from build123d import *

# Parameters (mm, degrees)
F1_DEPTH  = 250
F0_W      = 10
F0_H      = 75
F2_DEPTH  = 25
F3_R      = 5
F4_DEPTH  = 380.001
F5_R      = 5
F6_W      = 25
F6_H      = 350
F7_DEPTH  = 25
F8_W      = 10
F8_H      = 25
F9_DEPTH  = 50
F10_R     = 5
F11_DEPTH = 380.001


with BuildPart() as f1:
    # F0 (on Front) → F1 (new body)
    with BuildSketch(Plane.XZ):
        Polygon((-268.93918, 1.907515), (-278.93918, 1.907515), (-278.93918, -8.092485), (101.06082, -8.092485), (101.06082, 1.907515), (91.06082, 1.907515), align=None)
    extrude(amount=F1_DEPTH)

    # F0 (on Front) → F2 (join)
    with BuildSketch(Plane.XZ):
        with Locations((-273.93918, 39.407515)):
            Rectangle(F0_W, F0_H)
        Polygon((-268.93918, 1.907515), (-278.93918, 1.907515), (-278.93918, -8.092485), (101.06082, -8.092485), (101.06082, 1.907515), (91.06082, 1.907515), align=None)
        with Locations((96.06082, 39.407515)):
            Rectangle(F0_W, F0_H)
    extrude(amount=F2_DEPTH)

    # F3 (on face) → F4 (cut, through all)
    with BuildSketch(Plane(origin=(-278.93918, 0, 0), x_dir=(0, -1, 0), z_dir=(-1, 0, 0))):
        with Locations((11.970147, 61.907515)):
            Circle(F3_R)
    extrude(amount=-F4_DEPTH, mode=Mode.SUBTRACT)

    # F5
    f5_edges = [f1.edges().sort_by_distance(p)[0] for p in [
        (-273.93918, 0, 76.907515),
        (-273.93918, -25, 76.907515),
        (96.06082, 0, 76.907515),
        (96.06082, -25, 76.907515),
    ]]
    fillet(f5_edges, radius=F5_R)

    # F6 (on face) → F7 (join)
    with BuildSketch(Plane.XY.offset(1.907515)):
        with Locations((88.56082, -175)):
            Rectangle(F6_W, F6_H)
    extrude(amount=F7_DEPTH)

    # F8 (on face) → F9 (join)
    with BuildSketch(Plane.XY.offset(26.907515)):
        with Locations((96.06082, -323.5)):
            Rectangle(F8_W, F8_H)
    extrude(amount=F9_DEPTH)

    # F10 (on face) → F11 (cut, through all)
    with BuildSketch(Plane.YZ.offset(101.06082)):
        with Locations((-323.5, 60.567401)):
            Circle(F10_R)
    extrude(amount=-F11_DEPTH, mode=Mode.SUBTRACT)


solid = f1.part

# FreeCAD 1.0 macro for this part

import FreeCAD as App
import Part
import Sketcher
from FreeCAD import Vector
Q = App.Units.Quantity


def edges_at(feature, points):
    """Names of the edges that pass closest to the given points."""
    edges = feature.Shape.Edges
    near = lambda p: min(range(len(edges)), key=lambda i: edges[i].distToShape(Part.Vertex(*p))[0])
    return sorted({f"Edge{near(p) + 1}" for p in points})


def add_polygon(sketch, points):
    """Adds a closed chain of lines whose ends are joined by coincident constraints."""
    first, n = sketch.GeometryCount, len(points)
    for a, b in zip(points, points[1:] + points[:1]):
        sketch.addGeometry(Part.LineSegment(App.Vector(*a, 0), App.Vector(*b, 0)), False)
    for i in range(n):
        sketch.addConstraint(Sketcher.Constraint("Coincident", first + i, 2, first + (i + 1) % n, 1))

doc = App.newDocument("Part")
body = doc.addObject("PartDesign::Body", "Body")

# Sketch on XZ plane
sketch1 = body.newObject("Sketcher::SketchObject", "Sketch")
sketch1.AttachmentSupport = (doc.getObject("XZ_Plane"), [""])
sketch1.MapMode = "FlatFace"
add_polygon(sketch1, [(-278.93918, 1.907515), (-278.93918, -8.092485), (101.06082, -8.092485), (101.06082, 1.907515)])  # lines 0-3
sketch1.addConstraint([
    Sketcher.Constraint("Vertical", 0),
    Sketcher.Constraint("Horizontal", 1),
    Sketcher.Constraint("Vertical", 2),
    Sketcher.Constraint("Horizontal", 3),
    Sketcher.Constraint("DistanceX", 1, 1, 1, 2, Q("380 mm")),
    Sketcher.Constraint("DistanceY", 0, 2, 0, 1, Q("10 mm")),
    Sketcher.Constraint("DistanceX", 0, 2, -1, 1, Q("278.93918 mm")),
    Sketcher.Constraint("DistanceY", 0, 2, -1, 1, Q("8.092485 mm")),
])
pad1 = body.newObject("PartDesign::Pad", "Pad")
pad1.Profile = sketch1
pad1.Length = 250

# Sketch on XZ plane
sketch2 = body.newObject("Sketcher::SketchObject", "Sketch001")
sketch2.AttachmentSupport = (doc.getObject("XZ_Plane"), [""])
sketch2.MapMode = "FlatFace"
add_polygon(sketch2, [(-278.93918, 76.907515), (-278.93918, -8.092485), (101.06082, -8.092485), (101.06082, 76.907515), (91.06082, 76.907515), (91.06082, 1.907515), (-268.93918, 1.907515), (-268.93918, 76.907515)])  # lines 0-7
sketch2.addConstraint([
    Sketcher.Constraint("Vertical", 0),
    Sketcher.Constraint("Horizontal", 1),
    Sketcher.Constraint("Vertical", 2),
    Sketcher.Constraint("Horizontal", 3),
    Sketcher.Constraint("Vertical", 4),
    Sketcher.Constraint("Horizontal", 5),
    Sketcher.Constraint("Vertical", 6),
    Sketcher.Constraint("Horizontal", 7),
    Sketcher.Constraint("Horizontal", 3, 2, 6, 2),
    Sketcher.Constraint("Equal", 3, 7),
    Sketcher.Constraint("DistanceX", 1, 1, 1, 2, Q("380 mm")),
    Sketcher.Constraint("DistanceX", 3, 2, 3, 1, Q("10 mm")),
    Sketcher.Constraint("DistanceY", 0, 2, 0, 1, Q("85 mm")),
    Sketcher.Constraint("DistanceY", 4, 2, 4, 1, Q("75 mm")),
    Sketcher.Constraint("DistanceX", 0, 2, -1, 1, Q("278.93918 mm")),
    Sketcher.Constraint("DistanceY", 0, 2, -1, 1, Q("8.092485 mm")),
])
pad2 = body.newObject("PartDesign::Pad", "Pad001")
pad2.Profile = sketch2
pad2.Length = 25

# Sketch on YZ plane
sketch3 = body.newObject("Sketcher::SketchObject", "Sketch002")
sketch3.AttachmentSupport = (doc.getObject("YZ_Plane"), [""])
sketch3.MapMode = "FlatFace"
sketch3.AttachmentOffset = App.Placement(Vector(0, 0, -278.93918), App.Rotation())
sketch3.addGeometry(Part.Circle(Vector(-11.970147, 61.907515, 0), Vector(0, 0, 1), 5), False)
sketch3.addConstraint([
    Sketcher.Constraint("Diameter", 0, Q("10 mm")),
    Sketcher.Constraint("DistanceX", 0, 3, -1, 1, Q("11.970147 mm")),
    Sketcher.Constraint("DistanceY", -1, 1, 0, 3, Q("61.907515 mm")),
])
pocket1 = body.newObject("PartDesign::Pocket", "Pocket")
pocket1.Profile = sketch3
pocket1.Type = "ThroughAll"
pocket1.Reversed = True
doc.recompute()

fillet = body.newObject("PartDesign::Fillet", "Fillet")
fillet.Base = (pocket1, edges_at(pocket1, [
    (-273.939, 0, 76.908),
    (-273.939, -25, 76.908),
    (96.061, 0, 76.908),
    (96.061, -25, 76.908),
]))
fillet.Radius = 5

# Sketch on XY plane
sketch4 = body.newObject("Sketcher::SketchObject", "Sketch003")
sketch4.AttachmentSupport = (doc.getObject("XY_Plane"), [""])
sketch4.MapMode = "FlatFace"
sketch4.AttachmentOffset = App.Placement(Vector(0, 0, 1.907515), App.Rotation())
add_polygon(sketch4, [(76.06082, 0), (76.06082, -350), (101.06082, -350), (101.06082, 0)])  # lines 0-3
sketch4.addConstraint([
    Sketcher.Constraint("Vertical", 0),
    Sketcher.Constraint("Horizontal", 1),
    Sketcher.Constraint("Vertical", 2),
    Sketcher.Constraint("Horizontal", 3),
    Sketcher.Constraint("PointOnObject", 2, 2, -1),
    Sketcher.Constraint("DistanceX", 1, 1, 1, 2, Q("25 mm")),
    Sketcher.Constraint("DistanceY", 0, 2, 0, 1, Q("350 mm")),
    Sketcher.Constraint("DistanceX", -1, 1, 0, 2, Q("76.06082 mm")),
])
pad3 = body.newObject("PartDesign::Pad", "Pad002")
pad3.Profile = sketch4
pad3.Length = 25

# Sketch on XY plane
sketch5 = body.newObject("Sketcher::SketchObject", "Sketch004")
sketch5.AttachmentSupport = (doc.getObject("XY_Plane"), [""])
sketch5.MapMode = "FlatFace"
sketch5.AttachmentOffset = App.Placement(Vector(0, 0, 26.907515), App.Rotation())
add_polygon(sketch5, [(91.06082, -311), (91.06082, -336), (101.06082, -336), (101.06082, -311)])  # lines 0-3
sketch5.addConstraint([
    Sketcher.Constraint("Vertical", 0),
    Sketcher.Constraint("Horizontal", 1),
    Sketcher.Constraint("Vertical", 2),
    Sketcher.Constraint("Horizontal", 3),
    Sketcher.Constraint("DistanceX", 1, 1, 1, 2, Q("10 mm")),
    Sketcher.Constraint("DistanceY", 0, 2, 0, 1, Q("25 mm")),
    Sketcher.Constraint("DistanceY", 0, 2, -1, 1, Q("336 mm")),
    Sketcher.Constraint("DistanceX", -1, 1, 0, 2, Q("91.06082 mm")),
])
pad4 = body.newObject("PartDesign::Pad", "Pad003")
pad4.Profile = sketch5
pad4.Length = 50

# Sketch on YZ plane
sketch6 = body.newObject("Sketcher::SketchObject", "Sketch005")
sketch6.AttachmentSupport = (doc.getObject("YZ_Plane"), [""])
sketch6.MapMode = "FlatFace"
sketch6.AttachmentOffset = App.Placement(Vector(0, 0, 101.06082), App.Rotation())
sketch6.addGeometry(Part.Circle(Vector(-323.5, 60.567401, 0), Vector(0, 0, 1), 5), False)
sketch6.addConstraint([
    Sketcher.Constraint("Diameter", 0, Q("10 mm")),
    Sketcher.Constraint("DistanceX", 0, 3, -1, 1, Q("323.5 mm")),
    Sketcher.Constraint("DistanceY", -1, 1, 0, 3, Q("60.567401 mm")),
])
pocket2 = body.newObject("PartDesign::Pocket", "Pocket001")
pocket2.Profile = sketch6
pocket2.Type = "ThroughAll"

doc.recompute()
